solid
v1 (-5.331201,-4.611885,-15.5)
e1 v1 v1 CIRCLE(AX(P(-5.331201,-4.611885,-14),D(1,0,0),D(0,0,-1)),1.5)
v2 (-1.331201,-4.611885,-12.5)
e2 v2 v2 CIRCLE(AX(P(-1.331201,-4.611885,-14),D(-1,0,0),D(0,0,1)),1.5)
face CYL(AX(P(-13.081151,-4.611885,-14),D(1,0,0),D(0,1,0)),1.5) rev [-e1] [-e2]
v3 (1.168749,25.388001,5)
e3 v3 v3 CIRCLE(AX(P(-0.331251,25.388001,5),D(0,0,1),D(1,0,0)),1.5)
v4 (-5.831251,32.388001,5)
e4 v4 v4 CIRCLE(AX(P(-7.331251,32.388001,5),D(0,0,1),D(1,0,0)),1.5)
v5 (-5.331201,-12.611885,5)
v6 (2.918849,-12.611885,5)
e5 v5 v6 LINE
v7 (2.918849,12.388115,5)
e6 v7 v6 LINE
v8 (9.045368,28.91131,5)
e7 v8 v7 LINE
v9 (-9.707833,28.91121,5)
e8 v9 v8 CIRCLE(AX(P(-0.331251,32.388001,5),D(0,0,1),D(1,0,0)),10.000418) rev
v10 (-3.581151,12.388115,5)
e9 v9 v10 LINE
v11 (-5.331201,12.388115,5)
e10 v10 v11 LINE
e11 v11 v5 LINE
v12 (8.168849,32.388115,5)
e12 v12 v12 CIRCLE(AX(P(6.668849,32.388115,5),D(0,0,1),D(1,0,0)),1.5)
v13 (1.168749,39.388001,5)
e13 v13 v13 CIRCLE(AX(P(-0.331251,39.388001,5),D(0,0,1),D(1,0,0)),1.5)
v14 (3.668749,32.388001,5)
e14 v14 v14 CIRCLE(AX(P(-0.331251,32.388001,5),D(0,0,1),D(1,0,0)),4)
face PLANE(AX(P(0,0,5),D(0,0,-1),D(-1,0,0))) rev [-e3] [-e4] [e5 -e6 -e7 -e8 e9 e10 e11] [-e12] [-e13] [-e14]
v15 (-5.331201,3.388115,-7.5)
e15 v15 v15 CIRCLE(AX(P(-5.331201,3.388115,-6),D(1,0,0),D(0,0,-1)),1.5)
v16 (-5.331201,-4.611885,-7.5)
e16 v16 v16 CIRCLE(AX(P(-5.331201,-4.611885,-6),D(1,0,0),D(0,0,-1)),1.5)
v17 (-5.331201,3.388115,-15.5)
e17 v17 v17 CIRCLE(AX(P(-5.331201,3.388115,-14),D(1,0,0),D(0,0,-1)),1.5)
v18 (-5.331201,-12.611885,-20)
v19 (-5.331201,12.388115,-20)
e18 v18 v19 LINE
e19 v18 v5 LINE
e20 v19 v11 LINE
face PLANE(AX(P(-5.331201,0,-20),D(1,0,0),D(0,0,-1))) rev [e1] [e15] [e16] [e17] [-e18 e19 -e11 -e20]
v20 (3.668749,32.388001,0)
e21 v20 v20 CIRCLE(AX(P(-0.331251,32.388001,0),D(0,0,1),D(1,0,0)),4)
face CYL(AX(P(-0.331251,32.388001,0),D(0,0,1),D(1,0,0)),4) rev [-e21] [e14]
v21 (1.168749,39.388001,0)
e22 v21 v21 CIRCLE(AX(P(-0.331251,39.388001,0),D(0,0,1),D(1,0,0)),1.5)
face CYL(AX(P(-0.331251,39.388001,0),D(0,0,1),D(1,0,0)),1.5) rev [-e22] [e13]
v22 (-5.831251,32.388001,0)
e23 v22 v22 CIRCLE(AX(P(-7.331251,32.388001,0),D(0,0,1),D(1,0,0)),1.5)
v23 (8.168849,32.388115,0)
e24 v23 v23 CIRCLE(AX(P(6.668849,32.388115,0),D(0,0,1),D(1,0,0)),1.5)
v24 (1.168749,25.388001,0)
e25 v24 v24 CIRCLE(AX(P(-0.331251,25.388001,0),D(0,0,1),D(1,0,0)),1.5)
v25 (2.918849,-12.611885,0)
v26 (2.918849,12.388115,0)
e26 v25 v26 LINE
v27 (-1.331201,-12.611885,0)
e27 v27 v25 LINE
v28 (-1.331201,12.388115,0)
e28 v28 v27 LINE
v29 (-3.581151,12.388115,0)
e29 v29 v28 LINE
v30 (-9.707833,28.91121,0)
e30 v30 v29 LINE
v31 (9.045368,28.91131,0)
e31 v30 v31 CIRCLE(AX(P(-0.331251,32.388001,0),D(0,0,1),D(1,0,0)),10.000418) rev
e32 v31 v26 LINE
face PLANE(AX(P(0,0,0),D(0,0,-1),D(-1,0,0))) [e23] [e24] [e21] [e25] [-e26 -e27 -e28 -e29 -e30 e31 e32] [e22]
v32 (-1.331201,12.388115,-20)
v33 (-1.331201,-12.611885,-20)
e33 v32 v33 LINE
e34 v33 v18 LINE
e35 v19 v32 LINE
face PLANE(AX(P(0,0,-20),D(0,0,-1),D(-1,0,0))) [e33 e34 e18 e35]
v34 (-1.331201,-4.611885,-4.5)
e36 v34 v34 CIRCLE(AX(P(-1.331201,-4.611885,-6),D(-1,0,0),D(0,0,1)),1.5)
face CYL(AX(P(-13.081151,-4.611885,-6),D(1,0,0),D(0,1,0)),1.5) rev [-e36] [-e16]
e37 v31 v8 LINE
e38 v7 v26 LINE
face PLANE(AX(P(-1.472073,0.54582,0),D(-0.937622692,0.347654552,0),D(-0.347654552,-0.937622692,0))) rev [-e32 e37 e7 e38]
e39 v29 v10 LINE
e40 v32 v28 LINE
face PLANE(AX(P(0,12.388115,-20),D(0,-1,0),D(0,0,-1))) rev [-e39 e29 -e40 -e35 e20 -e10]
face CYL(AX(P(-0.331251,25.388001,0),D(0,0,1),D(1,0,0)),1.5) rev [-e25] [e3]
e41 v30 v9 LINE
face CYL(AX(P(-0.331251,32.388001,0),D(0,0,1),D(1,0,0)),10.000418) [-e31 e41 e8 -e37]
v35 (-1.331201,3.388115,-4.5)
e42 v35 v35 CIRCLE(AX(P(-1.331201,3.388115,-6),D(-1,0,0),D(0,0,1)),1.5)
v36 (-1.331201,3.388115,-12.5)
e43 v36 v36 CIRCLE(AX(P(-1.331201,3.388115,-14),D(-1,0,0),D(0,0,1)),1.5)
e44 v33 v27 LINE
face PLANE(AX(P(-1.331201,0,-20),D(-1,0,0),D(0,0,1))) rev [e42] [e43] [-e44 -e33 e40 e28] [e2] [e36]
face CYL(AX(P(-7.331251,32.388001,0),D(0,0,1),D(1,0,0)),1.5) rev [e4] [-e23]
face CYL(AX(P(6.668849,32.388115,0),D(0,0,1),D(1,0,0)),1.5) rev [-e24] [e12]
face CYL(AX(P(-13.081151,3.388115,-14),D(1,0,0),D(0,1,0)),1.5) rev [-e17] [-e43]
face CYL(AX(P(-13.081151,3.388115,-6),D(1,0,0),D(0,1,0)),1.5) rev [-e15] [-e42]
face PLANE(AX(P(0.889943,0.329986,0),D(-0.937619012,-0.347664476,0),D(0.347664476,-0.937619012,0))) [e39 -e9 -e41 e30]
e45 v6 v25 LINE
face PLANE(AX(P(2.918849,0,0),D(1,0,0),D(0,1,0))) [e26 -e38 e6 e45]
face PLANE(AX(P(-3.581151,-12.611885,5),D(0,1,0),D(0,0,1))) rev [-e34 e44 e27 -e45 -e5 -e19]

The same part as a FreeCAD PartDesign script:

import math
import FreeCAD as App
import Part
import Sketcher

doc = App.newDocument("Part")
body = doc.addObject("PartDesign::Body", "Body")

# Sketch on XY plane
sketch1 = body.newObject("Sketcher::SketchObject", "Sketch")
sketch1.AttachmentSupport = (doc.getObject("XY_Plane"), [""])
sketch1.MapMode = "FlatFace"
sketch1.addGeometry([
    Part.LineSegment(App.Vector(-3.6, -12.6, 0), App.Vector(2.9, -12.6, 0)),  # 0
    Part.LineSegment(App.Vector(2.9, -12.6, 0), App.Vector(2.9, 12.4, 0)),  # 1
    Part.LineSegment(App.Vector(2.9, 12.4, 0), App.Vector(-3.6, 12.4, 0)),  # 2
    Part.LineSegment(App.Vector(-3.6, 12.4, 0), App.Vector(-3.6, -12.6, 0)),  # 3
    Part.Circle(App.Vector(-0.1, -2.7, 0), App.Vector(0, 0, 1), 1.2),  # 4
    Part.Circle(App.Vector(0, -8.1, 0), App.Vector(0, 0, 1), 1.2),  # 5
    Part.Circle(App.Vector(-0.1, 2.8, 0), App.Vector(0, 0, 1), 1.2),  # 6
    Part.Circle(App.Vector(-0.1, 8.2, 0), App.Vector(0, 0, 1), 1.2),  # 7
], False)
sketch1.addConstraint([
    Sketcher.Constraint("Coincident", 0, 2, 1, 1),
    Sketcher.Constraint("Coincident", 1, 2, 2, 1),
    Sketcher.Constraint("Coincident", 2, 2, 3, 1),
    Sketcher.Constraint("Coincident", 3, 2, 0, 1),
    Sketcher.Constraint("Horizontal", 0),
    Sketcher.Constraint("Vertical", 1),
    Sketcher.Constraint("Horizontal", 2),
    Sketcher.Constraint("Vertical", 3),
    Sketcher.Constraint("Equal", 4, 5),
    Sketcher.Constraint("Equal", 5, 6),
    Sketcher.Constraint("Equal", 6, 7),
    Sketcher.Constraint("Vertical", 4, 3, 6, 3),
    Sketcher.Constraint("Vertical", 6, 3, 7, 3),
    Sketcher.Constraint("Diameter", 4, 2.5),
    Sketcher.Constraint("DistanceY", 1, 1, 1, 2, 25.0),
    Sketcher.Constraint("DistanceX", 0, 1, 0, 2, 6.5),
    Sketcher.Constraint("DistanceX", 4, 3, 0, 2, 3.0),
    Sketcher.Constraint("DistanceY", 4, 3, 7, 3, 10.9),
    Sketcher.Constraint("DistanceY", 0, 2, 5, 3, 4.5),
    Sketcher.Constraint("DistanceY", 4, 3, 6, 3, 5.45),
    Sketcher.Constraint("DistanceX", 4, 3, -1, 1, 0.081151),
    Sketcher.Constraint("DistanceY", 5, 3, 4, 3, 5.449408),
    Sketcher.Constraint("DistanceY", 4, 3, -1, 1, 2.662477),
    Sketcher.Constraint("DistanceX", 5, 3, -1, 1, 0.000847),
])
pad1 = body.newObject("PartDesign::Pad", "Pad")
pad1.Profile = sketch1
pad1.Length = 5

# Sketch on YZ plane
sketch2 = body.newObject("Sketcher::SketchObject", "Sketch001")
sketch2.AttachmentSupport = (doc.getObject("YZ_Plane"), [""])
sketch2.MapMode = "FlatFace"
sketch2.AttachmentOffset = App.Placement(App.Vector(0, 0, -3.581151), App.Rotation())
sketch2.addGeometry([
    Part.LineSegment(App.Vector(12, 0, 0), App.Vector(-13, 0, 0)),
    Part.LineSegment(App.Vector(-13, 0, 0), App.Vector(-13, 5, 0)),
    Part.LineSegment(App.Vector(-13, 5, 0), App.Vector(12, 5, 0)),
    Part.LineSegment(App.Vector(12, 5, 0), App.Vector(12, 0, 0)),
], False)
sketch2.addConstraint([
    Sketcher.Constraint("Coincident", 0, 2, 1, 1),
    Sketcher.Constraint("Coincident", 1, 2, 2, 1),
    Sketcher.Constraint("Coincident", 2, 2, 3, 1),
    Sketcher.Constraint("Coincident", 3, 2, 0, 1),
    Sketcher.Constraint("Horizontal", 0),
    Sketcher.Constraint("Vertical", 1),
    Sketcher.Constraint("Horizontal", 2),
    Sketcher.Constraint("Vertical", 3),
    Sketcher.Constraint("PointOnObject", 0, 2, -1),
    Sketcher.Constraint("DistanceX", 0, 2, 0, 1, 25.0),
    Sketcher.Constraint("DistanceY", 1, 1, 1, 2, 5.0),
    Sketcher.Constraint("DistanceX", 0, 2, -1, 1, 12.611885),
])
pad2 = body.newObject("PartDesign::Pad", "Pad001")
pad2.Profile = sketch2
pad2.Length = 4
pad2.Reversed = True

# Sketch on XY plane
sketch3 = body.newObject("Sketcher::SketchObject", "Sketch002")
sketch3.AttachmentSupport = (doc.getObject("XY_Plane"), [""])
sketch3.MapMode = "FlatFace"
sketch3.addGeometry([
    Part.LineSegment(App.Vector(-3.6, 12.4, 0), App.Vector(-3.6, -12.6, 0)),
    Part.LineSegment(App.Vector(-3.6, -12.6, 0), App.Vector(-7.6, -12.6, 0)),
    Part.LineSegment(App.Vector(-7.6, -12.6, 0), App.Vector(-7.6, 12.4, 0)),
    Part.LineSegment(App.Vector(-7.6, 12.4, 0), App.Vector(-3.6, 12.4, 0)),
], False)
sketch3.addConstraint([
    Sketcher.Constraint("Coincident", 0, 2, 1, 1),
    Sketcher.Constraint("Coincident", 1, 2, 2, 1),
    Sketcher.Constraint("Coincident", 2, 2, 3, 1),
    Sketcher.Constraint("Coincident", 3, 2, 0, 1),
    Sketcher.Constraint("Vertical", 0),
    Sketcher.Constraint("Horizontal", 1),
    Sketcher.Constraint("Vertical", 2),
    Sketcher.Constraint("Horizontal", 3),
    Sketcher.Constraint("DistanceX", 1, 2, 1, 1, 4.0),
    Sketcher.Constraint("DistanceY", 0, 2, 0, 1, 25.0),
    Sketcher.Constraint("DistanceX", 0, 2, -1, 1, 3.581151),
    Sketcher.Constraint("DistanceY", 0, 2, -1, 1, 12.611885),
])
pad3 = body.newObject("PartDesign::Pad", "Pad002")
pad3.Profile = sketch3
pad3.Length = 20
pad3.Reversed = True

# Sketch on YZ plane
sketch4 = body.newObject("Sketcher::SketchObject", "Sketch003")
sketch4.AttachmentSupport = (doc.getObject("YZ_Plane"), [""])
sketch4.MapMode = "FlatFace"
sketch4.AttachmentOffset = App.Placement(App.Vector(0, 0, -3.581151), App.Rotation())
sketch4.addGeometry([
    Part.Circle(App.Vector(3.4, -6, 0), App.Vector(0, 0, 1), 1.5),
    Part.Circle(App.Vector(3.4, -14, 0), App.Vector(0, 0, 1), 1.5),
    Part.Circle(App.Vector(-4.6, -14, 0), App.Vector(0, 0, 1), 1.5),
    Part.Circle(App.Vector(-4.6, -6, 0), App.Vector(0, 0, 1), 1.5),
], False)
sketch4.addConstraint([
    Sketcher.Constraint("Equal", 0, 1),
    Sketcher.Constraint("Equal", 1, 2),
    Sketcher.Constraint("Equal", 2, 3),
    Sketcher.Constraint("Horizontal", 1, 3, 2, 3),
    Sketcher.Constraint("Horizontal", 0, 3, 3, 3),
    Sketcher.Constraint("Vertical", 0, 3, 1, 3),
    Sketcher.Constraint("Vertical", 2, 3, 3, 3),
    Sketcher.Constraint("Diameter", 0, 3.0),
    Sketcher.Constraint("DistanceY", 0, 3, -1, 1, 6.0),
    Sketcher.Constraint("DistanceY", 1, 3, -1, 1, 14.0),
    Sketcher.Constraint("DistanceX", 2, 3, 1, 3, 8.0),
    Sketcher.Constraint("DistanceX", -1, 1, 0, 3, 3.388115),
])
pocket1 = body.newObject("PartDesign::Pocket", "Pocket")
pocket1.Profile = sketch4
pocket1.Length = 20

# Sketch on XY plane
sketch5 = body.newObject("Sketcher::SketchObject", "Sketch004")
sketch5.AttachmentSupport = (doc.getObject("XY_Plane"), [""])
sketch5.MapMode = "FlatFace"
sketch5.addGeometry([
    Part.Circle(App.Vector(-0.1, 8.2, 0), App.Vector(0, 0, 1), 1.2),
    Part.Circle(App.Vector(-0.1, 2.8, 0), App.Vector(0, 0, 1), 1.2),
    Part.Circle(App.Vector(-0.1, -2.7, 0), App.Vector(0, 0, 1), 1.2),
    Part.Circle(App.Vector(0, -8.1, 0), App.Vector(0, 0, 1), 1.2),
], False)
sketch5.addConstraint([
    Sketcher.Constraint("Equal", 0, 1),
    Sketcher.Constraint("Equal", 1, 2),
    Sketcher.Constraint("Equal", 2, 3),
    Sketcher.Constraint("Vertical", 0, 3, 1, 3),
    Sketcher.Constraint("Vertical", 1, 3, 2, 3),
    Sketcher.Constraint("Diameter", 0, 2.5),
    Sketcher.Constraint("DistanceY", 2, 3, 0, 3, 10.9),
    Sketcher.Constraint("DistanceY", 1, 3, 0, 3, 5.45),
    Sketcher.Constraint("DistanceX", 0, 3, -1, 1, 0.081151),
    Sketcher.Constraint("DistanceY", 3, 3, 2, 3, 5.449408),
    Sketcher.Constraint("DistanceY", -1, 1, 0, 3, 8.237523),
    Sketcher.Constraint("DistanceX", 3, 3, -1, 1, 0.000847),
])
pad4 = body.newObject("PartDesign::Pad", "Pad003")
pad4.Profile = sketch5
pad4.Length = 5

# Sketch on XY plane
sketch6 = body.newObject("Sketcher::SketchObject", "Sketch005")
sketch6.AttachmentSupport = (doc.getObject("XY_Plane"), [""])
sketch6.MapMode = "FlatFace"
sketch6.AttachmentOffset = App.Placement(App.Vector(0, 0, 5), App.Rotation())
sketch6.addGeometry([
    Part.ArcOfCircle(Part.Circle(App.Vector(-0.3, 32.4, 0), App.Vector(0, 0, 1), 10), math.radians(-20), math.radians(200)),  # 0
    Part.LineSegment(App.Vector(-9.7, 28.9, 0), App.Vector(-3.6, 12.4, 0)),  # 1
    Part.LineSegment(App.Vector(-3.6, 12.4, 0), App.Vector(2.9, 12.4, 0)),  # 2
    Part.LineSegment(App.Vector(2.9, 12.4, 0), App.Vector(9, 28.9, 0)),  # 3
    Part.Circle(App.Vector(-0.3, 25.4, 0), App.Vector(0, 0, 1), 1.5),  # 4
    Part.Circle(App.Vector(-7.3, 32.4, 0), App.Vector(0, 0, 1), 1.5),  # 5
    Part.Circle(App.Vector(-0.3, 32.4, 0), App.Vector(0, 0, 1), 4),  # 6
    Part.Circle(App.Vector(-0.3, 39.4, 0), App.Vector(0, 0, 1), 1.5),  # 7
    Part.Circle(App.Vector(6.7, 32.4, 0), App.Vector(0, 0, 1), 1.5),  # 8
], False)
sketch6.addConstraint([
    Sketcher.Constraint("Tangent", 0, 2, 1, 1),
    Sketcher.Constraint("Coincident", 1, 2, 2, 1),
    Sketcher.Constraint("Coincident", 2, 2, 3, 1),
    Sketcher.Constraint("Tangent", 3, 2, 0, 1),
    Sketcher.Constraint("Horizontal", 2),
    Sketcher.Constraint("Coincident", 6, 3, 0, 3),
    Sketcher.Constraint("Equal", 4, 5),
    Sketcher.Constraint("Equal", 5, 7),
    Sketcher.Constraint("Equal", 7, 8),
    Sketcher.Constraint("Horizontal", 0, 3, 5, 3),
    Sketcher.Constraint("Vertical", 0, 3, 4, 3),
    Sketcher.Constraint("Vertical", 6, 3, 7, 3),
    Sketcher.Constraint("Diameter", 4, 3.0),
    Sketcher.Constraint("Diameter", 6, 8.0),
    Sketcher.Constraint("DistanceX", 2, 1, 2, 2, 6.5),
    Sketcher.Constraint("DistanceY", 4, 3, 0, 3, 7.0),
    Sketcher.Constraint("DistanceX", 5, 3, 0, 3, 7.0),
    Sketcher.Constraint("DistanceY", 0, 3, 7, 3, 7.0),
    Sketcher.Constraint("DistanceY", 2, 2, 8, 3, 20.0),
    Sketcher.Constraint("Radius", 0, 10.000418),
    Sketcher.Constraint("DistanceX", 2, 2, 8, 3, 3.75),
    Sketcher.Constraint("DistanceY", -1, 1, 0, 3, 32.388001),
    Sketcher.Constraint("Distance", 1, 17.622398),
    Sketcher.Constraint("DistanceX", 0, 3, 8, 3, 7.000099),
    Sketcher.Constraint("DistanceX", 0, 3, -1, 1, 0.331251),
])
pad5 = body.newObject("PartDesign::Pad", "Pad004")
pad5.Profile = sketch6
pad5.Length = 5
pad5.Reversed = True

# Sketch on YZ plane
sketch7 = body.newObject("Sketcher::SketchObject", "Sketch006")
sketch7.AttachmentSupport = (doc.getObject("YZ_Plane"), [""])
sketch7.MapMode = "FlatFace"
sketch7.AttachmentOffset = App.Placement(App.Vector(0, 0, 6.918849), App.Rotation())
sketch7.addGeometry([
    Part.LineSegment(App.Vector(12.4, 5, 0), App.Vector(-12.6, 5, 0)),  # 0
    Part.LineSegment(App.Vector(-12.6, 5, 0), App.Vector(-12.6, -20, 0)),  # 1
    Part.LineSegment(App.Vector(-12.6, -20, 0), App.Vector(12.4, -20, 0)),  # 2
    Part.LineSegment(App.Vector(12.4, -20, 0), App.Vector(12.4, 5, 0)),  # 3
    Part.Circle(App.Vector(-4.6, -6, 0), App.Vector(0, 0, 1), 1.5),  # 4
    Part.Circle(App.Vector(-4.6, -14, 0), App.Vector(0, 0, 1), 1.5),  # 5
    Part.Circle(App.Vector(3.4, -6, 0), App.Vector(0, 0, 1), 1.5),  # 6
    Part.Circle(App.Vector(3.4, -14, 0), App.Vector(0, 0, 1), 1.5),  # 7
], False)
sketch7.addConstraint([
    Sketcher.Constraint("Coincident", 0, 2, 1, 1),
    Sketcher.Constraint("Coincident", 1, 2, 2, 1),
    Sketcher.Constraint("Coincident", 2, 2, 3, 1),
    Sketcher.Constraint("Coincident", 3, 2, 0, 1),
    Sketcher.Constraint("Horizontal", 0),
    Sketcher.Constraint("Vertical", 1),
    Sketcher.Constraint("Horizontal", 2),
    Sketcher.Constraint("Vertical", 3),
    Sketcher.Constraint("Equal", 4, 5),
    Sketcher.Constraint("Equal", 5, 6),
    Sketcher.Constraint("Equal", 6, 7),
    Sketcher.Constraint("Horizontal", 4, 3, 6, 3),
    Sketcher.Constraint("Horizontal", 5, 3, 7, 3),
    Sketcher.Constraint("Vertical", 4, 3, 5, 3),
    Sketcher.Constraint("Vertical", 6, 3, 7, 3),
    Sketcher.Constraint("Equal", 2, 1),
    Sketcher.Constraint("Diameter", 4, 3.0),
    Sketcher.Constraint("DistanceX", 0, 2, 0, 1, 25.0),
    Sketcher.Constraint("DistanceY", 4, 3, -1, 1, 6.0),
    Sketcher.Constraint("DistanceY", 5, 3, -1, 1, 14.0),
    Sketcher.Constraint("DistanceY", -1, 1, 0, 2, 5.0),
    Sketcher.Constraint("DistanceX", 4, 3, 6, 3, 8.0),
    Sketcher.Constraint("DistanceX", 0, 2, 4, 3, 8.0),
    Sketcher.Constraint("DistanceX", 4, 3, -1, 1, 4.611885),
])
pad6 = body.newObject("PartDesign::Pad", "Pad005")
pad6.Profile = sketch7
pad6.Length = 4
pad6.Reversed = True

# Sketch on XY plane
sketch8 = body.newObject("Sketcher::SketchObject", "Sketch007")
sketch8.AttachmentSupport = (doc.getObject("XY_Plane"), [""])
sketch8.MapMode = "FlatFace"
sketch8.AttachmentOffset = App.Placement(App.Vector(0, 0, -20), App.Rotation())
sketch8.addGeometry([
    Part.LineSegment(App.Vector(-3.6, 12.4, 0), App.Vector(-3.6, -12.6, 0)),
    Part.LineSegment(App.Vector(-3.6, -12.6, 0), App.Vector(-7.6, -12.6, 0)),
    Part.LineSegment(App.Vector(-7.6, -12.6, 0), App.Vector(-7.6, 12.4, 0)),
    Part.LineSegment(App.Vector(-7.6, 12.4, 0), App.Vector(-3.6, 12.4, 0)),
], False)
sketch8.addConstraint([
    Sketcher.Constraint("Coincident", 0, 2, 1, 1),
    Sketcher.Constraint("Coincident", 1, 2, 2, 1),
    Sketcher.Constraint("Coincident", 2, 2, 3, 1),
    Sketcher.Constraint("Coincident", 3, 2, 0, 1),
    Sketcher.Constraint("Vertical", 0),
    Sketcher.Constraint("Horizontal", 1),
    Sketcher.Constraint("Vertical", 2),
    Sketcher.Constraint("Horizontal", 3),
    Sketcher.Constraint("DistanceX", 1, 2, 1, 1, 4.0),
    Sketcher.Constraint("DistanceY", 0, 2, 0, 1, 25.0),
    Sketcher.Constraint("DistanceX", 0, 2, -1, 1, 3.581151),
    Sketcher.Constraint("DistanceY", 0, 2, -1, 1, 12.611885),
])
pocket2 = body.newObject("PartDesign::Pocket", "Pocket001")
pocket2.Profile = sketch8
pocket2.Length = 100
pocket2.Reversed = True

# Sketch on XY plane
sketch9 = body.newObject("Sketcher::SketchObject", "Sketch008")
sketch9.AttachmentSupport = (doc.getObject("XY_Plane"), [""])
sketch9.MapMode = "FlatFace"
sketch9.addGeometry([
    Part.LineSegment(App.Vector(-5.3, -12.6, 0), App.Vector(-5.3, 12.4, 0)),
    Part.LineSegment(App.Vector(-5.3, 12.4, 0), App.Vector(-1.3, 12.4, 0)),
    Part.LineSegment(App.Vector(-1.3, 12.4, 0), App.Vector(-1.3, -12.6, 0)),
    Part.LineSegment(App.Vector(-1.3, -12.6, 0), App.Vector(-5.3, -12.6, 0)),
], False)
sketch9.addConstraint([
    Sketcher.Constraint("Coincident", 0, 2, 1, 1),
    Sketcher.Constraint("Coincident", 1, 2, 2, 1),
    Sketcher.Constraint("Coincident", 2, 2, 3, 1),
    Sketcher.Constraint("Coincident", 3, 2, 0, 1),
    Sketcher.Constraint("Vertical", 0),
    Sketcher.Constraint("Horizontal", 1),
    Sketcher.Constraint("Vertical", 2),
    Sketcher.Constraint("Horizontal", 3),
    Sketcher.Constraint("DistanceX", 1, 1, 1, 2, 4.0),
    Sketcher.Constraint("DistanceY", 0, 1, 0, 2, 25.0),
    Sketcher.Constraint("DistanceX", 0, 2, -1, 1, 5.331201),
    Sketcher.Constraint("DistanceY", -1, 1, 0, 2, 12.388115),
])
pad7 = body.newObject("PartDesign::Pad", "Pad006")
pad7.Profile = sketch9
pad7.Length = 20
pad7.Reversed = True

# Sketch on YZ plane
sketch10 = body.newObject("Sketcher::SketchObject", "Sketch009")
sketch10.AttachmentSupport = (doc.getObject("YZ_Plane"), [""])
sketch10.MapMode = "FlatFace"
sketch10.AttachmentOffset = App.Placement(App.Vector(0, 0, 6.918849), App.Rotation())
sketch10.addGeometry([
    Part.Circle(App.Vector(3.4, -6, 0), App.Vector(0, 0, 1), 1.5),
    Part.Circle(App.Vector(3.4, -14, 0), App.Vector(0, 0, 1), 1.5),
    Part.Circle(App.Vector(-4.6, -6, 0), App.Vector(0, 0, 1), 1.5),
    Part.Circle(App.Vector(-4.6, -14, 0), App.Vector(0, 0, 1), 1.5),
], False)
sketch10.addConstraint([
    Sketcher.Constraint("Equal", 0, 1),
    Sketcher.Constraint("Equal", 1, 2),
    Sketcher.Constraint("Equal", 2, 3),
    Sketcher.Constraint("Horizontal", 0, 3, 2, 3),
    Sketcher.Constraint("Horizontal", 1, 3, 3, 3),
    Sketcher.Constraint("Vertical", 0, 3, 1, 3),
    Sketcher.Constraint("Vertical", 2, 3, 3, 3),
    Sketcher.Constraint("Diameter", 0, 3.0),
    Sketcher.Constraint("DistanceY", 0, 3, -1, 1, 6.0),
    Sketcher.Constraint("DistanceY", 1, 3, -1, 1, 14.0),
    Sketcher.Constraint("DistanceX", 2, 3, 0, 3, 8.0),
    Sketcher.Constraint("DistanceX", -1, 1, 0, 3, 3.388115),
])
pocket3 = body.newObject("PartDesign::Pocket", "Pocket002")
pocket3.Profile = sketch10
pocket3.Length = 20

# Sketch on YZ plane
sketch11 = body.newObject("Sketcher::SketchObject", "Sketch010")
sketch11.AttachmentSupport = (doc.getObject("YZ_Plane"), [""])
sketch11.MapMode = "FlatFace"
sketch11.AttachmentOffset = App.Placement(App.Vector(0, 0, 6.918849), App.Rotation())
sketch11.addGeometry([
    Part.LineSegment(App.Vector(12, 5, 0), App.Vector(-13, 5, 0)),
    Part.LineSegment(App.Vector(-13, 5, 0), App.Vector(-13, -20, 0)),
    Part.LineSegment(App.Vector(-13, -20, 0), App.Vector(12, -20, 0)),
    Part.LineSegment(App.Vector(12, -20, 0), App.Vector(12, 5, 0)),
], False)
sketch11.addConstraint([
    Sketcher.Constraint("Coincident", 0, 2, 1, 1),
    Sketcher.Constraint("Coincident", 1, 2, 2, 1),
    Sketcher.Constraint("Coincident", 2, 2, 3, 1),
    Sketcher.Constraint("Coincident", 3, 2, 0, 1),
    Sketcher.Constraint("Horizontal", 0),
    Sketcher.Constraint("Vertical", 1),
    Sketcher.Constraint("Horizontal", 2),
    Sketcher.Constraint("Vertical", 3),
    Sketcher.Constraint("Equal", 2, 1),
    Sketcher.Constraint("DistanceX", 0, 2, 0, 1, 25.0),
    Sketcher.Constraint("DistanceY", -1, 1, 0, 2, 5.0),
    Sketcher.Constraint("DistanceX", 0, 2, -1, 1, 12.611885),
])
pocket4 = body.newObject("PartDesign::Pocket", "Pocket003")
pocket4.Profile = sketch11
pocket4.Length = 4

# Sketch on XY plane
sketch12 = body.newObject("Sketcher::SketchObject", "Sketch011")
sketch12.AttachmentSupport = (doc.getObject("XY_Plane"), [""])
sketch12.MapMode = "FlatFace"
sketch12.addGeometry([
    Part.LineSegment(App.Vector(-5.3, 12.4, 0), App.Vector(-5.3, -12.6, 0)),
    Part.LineSegment(App.Vector(-5.3, -12.6, 0), App.Vector(-3.6, -12.6, 0)),
    Part.LineSegment(App.Vector(-3.6, -12.6, 0), App.Vector(-3.6, 12.4, 0)),
    Part.LineSegment(App.Vector(-3.6, 12.4, 0), App.Vector(-5.3, 12.4, 0)),
], False)
sketch12.addConstraint([
    Sketcher.Constraint("Coincident", 0, 2, 1, 1),
    Sketcher.Constraint("Coincident", 1, 2, 2, 1),
    Sketcher.Constraint("Coincident", 2, 2, 3, 1),
    Sketcher.Constraint("Coincident", 3, 2, 0, 1),
    Sketcher.Constraint("Vertical", 0),
    Sketcher.Constraint("Horizontal", 1),
    Sketcher.Constraint("Vertical", 2),
    Sketcher.Constraint("Horizontal", 3),
    Sketcher.Constraint("DistanceY", 0, 2, 0, 1, 25.0),
    Sketcher.Constraint("DistanceX", 1, 1, 1, 2, 1.75005),
    Sketcher.Constraint("DistanceX", 0, 2, -1, 1, 5.331201),
    Sketcher.Constraint("DistanceY", 0, 2, -1, 1, 12.611885),
])
pad8 = body.newObject("PartDesign::Pad", "Pad007")
pad8.Profile = sketch12
pad8.Length = 5

doc.recompute()
